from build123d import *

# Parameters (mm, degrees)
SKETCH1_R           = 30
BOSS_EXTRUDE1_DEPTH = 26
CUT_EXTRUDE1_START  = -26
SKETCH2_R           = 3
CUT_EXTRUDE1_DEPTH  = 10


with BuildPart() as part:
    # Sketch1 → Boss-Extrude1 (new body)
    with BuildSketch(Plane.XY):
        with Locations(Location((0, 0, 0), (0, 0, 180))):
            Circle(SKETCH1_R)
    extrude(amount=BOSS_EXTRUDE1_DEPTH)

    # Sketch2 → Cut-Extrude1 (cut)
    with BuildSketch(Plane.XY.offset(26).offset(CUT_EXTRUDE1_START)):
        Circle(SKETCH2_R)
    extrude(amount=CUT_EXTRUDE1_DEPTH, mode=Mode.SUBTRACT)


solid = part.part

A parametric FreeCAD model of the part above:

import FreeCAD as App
import Part
import Sketcher

doc = App.newDocument("Part")
body = doc.addObject("PartDesign::Body", "Body")

sketch1 = doc.addObject("Sketcher::SketchObject", "Sketch")
body.addObject(sketch1)
sketch1.AttachmentSupport = (doc.XY_Plane, [""])
sketch1.MapMode = "FlatFace"
sketch1.addGeometry(Part.Circle(App.Vector(0, 0, 0), App.Vector(0, 0, 1), 30), False)
sketch1.addConstraint(Sketcher.Constraint("Coincident", 0, 3, -1, 1))
sketch1.addConstraint(Sketcher.Constraint("Diameter", 0, 60.0))
pad1 = doc.addObject("PartDesign::Pad", "Pad")
body.addObject(pad1)
pad1.Profile = sketch1
pad1.Length = 26

sketch2 = doc.addObject("Sketcher::SketchObject", "Sketch001")
body.addObject(sketch2)
sketch2.AttachmentSupport = (doc.XY_Plane, [""])
sketch2.MapMode = "FlatFace"
sketch2.addGeometry(Part.Circle(App.Vector(0, 0, 0), App.Vector(0, 0, 1), 3), False)
sketch2.addConstraint(Sketcher.Constraint("Coincident", 0, 3, -1, 1))
sketch2.addConstraint(Sketcher.Constraint("Diameter", 0, 6.0))
pocket1 = doc.addObject("PartDesign::Pocket", "Pocket")
body.addObject(pocket1)
pocket1.Profile = sketch2
pocket1.Length = 10
pocket1.Reversed = True

doc.recompute()
